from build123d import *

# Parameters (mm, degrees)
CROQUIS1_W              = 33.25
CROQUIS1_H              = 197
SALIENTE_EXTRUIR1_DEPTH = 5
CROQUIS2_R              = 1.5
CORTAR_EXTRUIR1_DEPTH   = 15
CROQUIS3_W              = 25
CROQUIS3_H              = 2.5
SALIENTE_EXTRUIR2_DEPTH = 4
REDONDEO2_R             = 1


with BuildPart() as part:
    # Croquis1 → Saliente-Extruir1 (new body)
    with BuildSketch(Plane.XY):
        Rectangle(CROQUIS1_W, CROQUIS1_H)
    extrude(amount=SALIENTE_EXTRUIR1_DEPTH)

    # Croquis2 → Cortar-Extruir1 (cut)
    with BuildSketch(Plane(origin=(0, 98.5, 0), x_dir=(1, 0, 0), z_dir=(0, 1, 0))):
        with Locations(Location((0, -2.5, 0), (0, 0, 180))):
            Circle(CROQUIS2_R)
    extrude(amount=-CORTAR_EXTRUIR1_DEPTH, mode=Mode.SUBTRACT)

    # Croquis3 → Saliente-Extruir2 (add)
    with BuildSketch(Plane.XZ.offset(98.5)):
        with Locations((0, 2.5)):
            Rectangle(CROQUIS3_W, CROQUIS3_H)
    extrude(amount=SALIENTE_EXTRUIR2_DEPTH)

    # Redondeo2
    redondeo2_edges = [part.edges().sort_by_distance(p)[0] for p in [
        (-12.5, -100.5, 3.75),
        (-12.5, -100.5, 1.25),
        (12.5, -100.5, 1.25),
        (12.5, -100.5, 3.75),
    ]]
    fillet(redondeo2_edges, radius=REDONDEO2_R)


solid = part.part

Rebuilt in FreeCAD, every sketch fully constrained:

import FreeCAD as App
import Part
import Sketcher
Q = App.Units.Quantity


def edges_at(feature, points):
    """Names of the edges that pass closest to the given points."""
    edges = feature.Shape.Edges
    near = lambda p: min(range(len(edges)), key=lambda i: edges[i].distToShape(Part.Vertex(*p))[0])
    return sorted({f"Edge{near(p) + 1}" for p in points})

doc = App.newDocument("Part")
params = doc.addObject("Spreadsheet::Sheet", "Params")
for row, (alias, value) in enumerate([
    ("sketch1_height", "197 mm"),
    ("sketch1_width", "33.25 mm"),
    ("pad1_length", "5 mm"),
    ("sketch2_diameter", "3 mm"),
    ("pocket1_length", "15 mm"),
    ("sketch3_width", "25 mm"),
    ("sketch3_height", "2.5 mm"),
    ("pad2_length", "4 mm"),
    ("fillet_radius", "1 mm"),
], start=1):
    params.set(f"A{row}", alias)
    params.set(f"B{row}", "=" + value)
    params.setAlias(f"B{row}", alias)

body = doc.addObject("PartDesign::Body", "Body")

sketch1 = doc.addObject("Sketcher::SketchObject", "Sketch")
body.addObject(sketch1)
sketch1.AttachmentSupport = (doc.XY_Plane, [""])
sketch1.MapMode = "FlatFace"
sketch1.addGeometry([
    Part.LineSegment(App.Vector(-17, 98, 0), App.Vector(-17, -98, 0)),
    Part.LineSegment(App.Vector(-17, -98, 0), App.Vector(17, -98, 0)),
    Part.LineSegment(App.Vector(17, -98, 0), App.Vector(17, 98, 0)),
    Part.LineSegment(App.Vector(17, 98, 0), App.Vector(-17, 98, 0)),
], False)
sketch1.addConstraint([
    Sketcher.Constraint("Coincident", 0, 2, 1, 1),
    Sketcher.Constraint("Coincident", 1, 2, 2, 1),
    Sketcher.Constraint("Coincident", 2, 2, 3, 1),
    Sketcher.Constraint("Coincident", 3, 2, 0, 1),
    Sketcher.Constraint("Vertical", 0),
    Sketcher.Constraint("Horizontal", 1),
    Sketcher.Constraint("Vertical", 2),
    Sketcher.Constraint("Horizontal", 3),
    Sketcher.Constraint("Symmetric", 0, 2, 2, 2, -1, 1),
    Sketcher.Constraint("DistanceY", 0, 2, 0, 1, Q("197 mm")),
    Sketcher.Constraint("DistanceX", 1, 1, 1, 2, Q("33.25 mm")),
])
sketch1.setExpression("Constraints[9]", "Params.sketch1_height")
sketch1.setExpression("Constraints[10]", "Params.sketch1_width")
pad1 = doc.addObject("PartDesign::Pad", "Pad")
body.addObject(pad1)
pad1.Profile = sketch1
pad1.setExpression("Length", "Params.pad1_length")

sketch2 = doc.addObject("Sketcher::SketchObject", "Sketch001")
body.addObject(sketch2)
sketch2.AttachmentSupport = (doc.XZ_Plane, [""])
sketch2.MapMode = "FlatFace"
sketch2.AttachmentOffset = App.Placement(App.Vector(0, 0, -98.5), App.Rotation())
sketch2.addGeometry(Part.Circle(App.Vector(0, 2.5, 0), App.Vector(0, 0, 1), 1.5), False)
sketch2.addConstraint([
    Sketcher.Constraint("PointOnObject", 0, 3, -2),
    Sketcher.Constraint("Diameter", 0, Q("3 mm")),
    Sketcher.Constraint("DistanceY", -1, 1, 0, 3, Q("2.5 mm")),
])
sketch2.setExpression("Constraints[1]", "Params.sketch2_diameter")
pocket1 = doc.addObject("PartDesign::Pocket", "Pocket")
body.addObject(pocket1)
pocket1.Profile = sketch2
pocket1.setExpression("Length", "Params.pocket1_length")
pocket1.Reversed = True

sketch3 = doc.addObject("Sketcher::SketchObject", "Sketch002")
body.addObject(sketch3)
sketch3.AttachmentSupport = (doc.XZ_Plane, [""])
sketch3.MapMode = "FlatFace"
sketch3.AttachmentOffset = App.Placement(App.Vector(0, 0, 98.5), App.Rotation())
sketch3.addGeometry([
    Part.LineSegment(App.Vector(-12.5, 3.8, 0), App.Vector(-12.5, 1.2, 0)),
    Part.LineSegment(App.Vector(-12.5, 1.2, 0), App.Vector(12.5, 1.2, 0)),
    Part.LineSegment(App.Vector(12.5, 1.2, 0), App.Vector(12.5, 3.8, 0)),
    Part.LineSegment(App.Vector(12.5, 3.8, 0), App.Vector(-12.5, 3.8, 0)),
], False)
sketch3.addConstraint([
    Sketcher.Constraint("Coincident", 0, 2, 1, 1),
    Sketcher.Constraint("Coincident", 1, 2, 2, 1),
    Sketcher.Constraint("Coincident", 2, 2, 3, 1),
    Sketcher.Constraint("Coincident", 3, 2, 0, 1),
    Sketcher.Constraint("Vertical", 0),
    Sketcher.Constraint("Horizontal", 1),
    Sketcher.Constraint("Vertical", 2),
    Sketcher.Constraint("Horizontal", 3),
    Sketcher.Constraint("DistanceX", 1, 1, 1, 2, Q("25 mm")),
    Sketcher.Constraint("DistanceY", 0, 2, 0, 1, Q("2.5 mm")),
    Sketcher.Constraint("DistanceX", 0, 2, -1, 1, Q("12.5 mm")),
    Sketcher.Constraint("DistanceY", -1, 1, 0, 2, Q("1.25 mm")),
])
sketch3.setExpression("Constraints[8]", "Params.sketch3_width")
sketch3.setExpression("Constraints[9]", "Params.sketch3_height")
pad2 = doc.addObject("PartDesign::Pad", "Pad001")
body.addObject(pad2)
pad2.Profile = sketch3
pad2.setExpression("Length", "Params.pad2_length")
doc.recompute()

fillet = doc.addObject("PartDesign::Fillet", "Fillet")
body.addObject(fillet)
fillet.Base = (pad2, edges_at(pad2, [
    (-12.5, -100.5, 3.75),
    (-12.5, -100.5, 1.25),
    (12.5, -100.5, 1.25),
    (12.5, -100.5, 3.75),
]))
fillet.setExpression("Radius", "Params.fillet_radius")

doc.recompute()
